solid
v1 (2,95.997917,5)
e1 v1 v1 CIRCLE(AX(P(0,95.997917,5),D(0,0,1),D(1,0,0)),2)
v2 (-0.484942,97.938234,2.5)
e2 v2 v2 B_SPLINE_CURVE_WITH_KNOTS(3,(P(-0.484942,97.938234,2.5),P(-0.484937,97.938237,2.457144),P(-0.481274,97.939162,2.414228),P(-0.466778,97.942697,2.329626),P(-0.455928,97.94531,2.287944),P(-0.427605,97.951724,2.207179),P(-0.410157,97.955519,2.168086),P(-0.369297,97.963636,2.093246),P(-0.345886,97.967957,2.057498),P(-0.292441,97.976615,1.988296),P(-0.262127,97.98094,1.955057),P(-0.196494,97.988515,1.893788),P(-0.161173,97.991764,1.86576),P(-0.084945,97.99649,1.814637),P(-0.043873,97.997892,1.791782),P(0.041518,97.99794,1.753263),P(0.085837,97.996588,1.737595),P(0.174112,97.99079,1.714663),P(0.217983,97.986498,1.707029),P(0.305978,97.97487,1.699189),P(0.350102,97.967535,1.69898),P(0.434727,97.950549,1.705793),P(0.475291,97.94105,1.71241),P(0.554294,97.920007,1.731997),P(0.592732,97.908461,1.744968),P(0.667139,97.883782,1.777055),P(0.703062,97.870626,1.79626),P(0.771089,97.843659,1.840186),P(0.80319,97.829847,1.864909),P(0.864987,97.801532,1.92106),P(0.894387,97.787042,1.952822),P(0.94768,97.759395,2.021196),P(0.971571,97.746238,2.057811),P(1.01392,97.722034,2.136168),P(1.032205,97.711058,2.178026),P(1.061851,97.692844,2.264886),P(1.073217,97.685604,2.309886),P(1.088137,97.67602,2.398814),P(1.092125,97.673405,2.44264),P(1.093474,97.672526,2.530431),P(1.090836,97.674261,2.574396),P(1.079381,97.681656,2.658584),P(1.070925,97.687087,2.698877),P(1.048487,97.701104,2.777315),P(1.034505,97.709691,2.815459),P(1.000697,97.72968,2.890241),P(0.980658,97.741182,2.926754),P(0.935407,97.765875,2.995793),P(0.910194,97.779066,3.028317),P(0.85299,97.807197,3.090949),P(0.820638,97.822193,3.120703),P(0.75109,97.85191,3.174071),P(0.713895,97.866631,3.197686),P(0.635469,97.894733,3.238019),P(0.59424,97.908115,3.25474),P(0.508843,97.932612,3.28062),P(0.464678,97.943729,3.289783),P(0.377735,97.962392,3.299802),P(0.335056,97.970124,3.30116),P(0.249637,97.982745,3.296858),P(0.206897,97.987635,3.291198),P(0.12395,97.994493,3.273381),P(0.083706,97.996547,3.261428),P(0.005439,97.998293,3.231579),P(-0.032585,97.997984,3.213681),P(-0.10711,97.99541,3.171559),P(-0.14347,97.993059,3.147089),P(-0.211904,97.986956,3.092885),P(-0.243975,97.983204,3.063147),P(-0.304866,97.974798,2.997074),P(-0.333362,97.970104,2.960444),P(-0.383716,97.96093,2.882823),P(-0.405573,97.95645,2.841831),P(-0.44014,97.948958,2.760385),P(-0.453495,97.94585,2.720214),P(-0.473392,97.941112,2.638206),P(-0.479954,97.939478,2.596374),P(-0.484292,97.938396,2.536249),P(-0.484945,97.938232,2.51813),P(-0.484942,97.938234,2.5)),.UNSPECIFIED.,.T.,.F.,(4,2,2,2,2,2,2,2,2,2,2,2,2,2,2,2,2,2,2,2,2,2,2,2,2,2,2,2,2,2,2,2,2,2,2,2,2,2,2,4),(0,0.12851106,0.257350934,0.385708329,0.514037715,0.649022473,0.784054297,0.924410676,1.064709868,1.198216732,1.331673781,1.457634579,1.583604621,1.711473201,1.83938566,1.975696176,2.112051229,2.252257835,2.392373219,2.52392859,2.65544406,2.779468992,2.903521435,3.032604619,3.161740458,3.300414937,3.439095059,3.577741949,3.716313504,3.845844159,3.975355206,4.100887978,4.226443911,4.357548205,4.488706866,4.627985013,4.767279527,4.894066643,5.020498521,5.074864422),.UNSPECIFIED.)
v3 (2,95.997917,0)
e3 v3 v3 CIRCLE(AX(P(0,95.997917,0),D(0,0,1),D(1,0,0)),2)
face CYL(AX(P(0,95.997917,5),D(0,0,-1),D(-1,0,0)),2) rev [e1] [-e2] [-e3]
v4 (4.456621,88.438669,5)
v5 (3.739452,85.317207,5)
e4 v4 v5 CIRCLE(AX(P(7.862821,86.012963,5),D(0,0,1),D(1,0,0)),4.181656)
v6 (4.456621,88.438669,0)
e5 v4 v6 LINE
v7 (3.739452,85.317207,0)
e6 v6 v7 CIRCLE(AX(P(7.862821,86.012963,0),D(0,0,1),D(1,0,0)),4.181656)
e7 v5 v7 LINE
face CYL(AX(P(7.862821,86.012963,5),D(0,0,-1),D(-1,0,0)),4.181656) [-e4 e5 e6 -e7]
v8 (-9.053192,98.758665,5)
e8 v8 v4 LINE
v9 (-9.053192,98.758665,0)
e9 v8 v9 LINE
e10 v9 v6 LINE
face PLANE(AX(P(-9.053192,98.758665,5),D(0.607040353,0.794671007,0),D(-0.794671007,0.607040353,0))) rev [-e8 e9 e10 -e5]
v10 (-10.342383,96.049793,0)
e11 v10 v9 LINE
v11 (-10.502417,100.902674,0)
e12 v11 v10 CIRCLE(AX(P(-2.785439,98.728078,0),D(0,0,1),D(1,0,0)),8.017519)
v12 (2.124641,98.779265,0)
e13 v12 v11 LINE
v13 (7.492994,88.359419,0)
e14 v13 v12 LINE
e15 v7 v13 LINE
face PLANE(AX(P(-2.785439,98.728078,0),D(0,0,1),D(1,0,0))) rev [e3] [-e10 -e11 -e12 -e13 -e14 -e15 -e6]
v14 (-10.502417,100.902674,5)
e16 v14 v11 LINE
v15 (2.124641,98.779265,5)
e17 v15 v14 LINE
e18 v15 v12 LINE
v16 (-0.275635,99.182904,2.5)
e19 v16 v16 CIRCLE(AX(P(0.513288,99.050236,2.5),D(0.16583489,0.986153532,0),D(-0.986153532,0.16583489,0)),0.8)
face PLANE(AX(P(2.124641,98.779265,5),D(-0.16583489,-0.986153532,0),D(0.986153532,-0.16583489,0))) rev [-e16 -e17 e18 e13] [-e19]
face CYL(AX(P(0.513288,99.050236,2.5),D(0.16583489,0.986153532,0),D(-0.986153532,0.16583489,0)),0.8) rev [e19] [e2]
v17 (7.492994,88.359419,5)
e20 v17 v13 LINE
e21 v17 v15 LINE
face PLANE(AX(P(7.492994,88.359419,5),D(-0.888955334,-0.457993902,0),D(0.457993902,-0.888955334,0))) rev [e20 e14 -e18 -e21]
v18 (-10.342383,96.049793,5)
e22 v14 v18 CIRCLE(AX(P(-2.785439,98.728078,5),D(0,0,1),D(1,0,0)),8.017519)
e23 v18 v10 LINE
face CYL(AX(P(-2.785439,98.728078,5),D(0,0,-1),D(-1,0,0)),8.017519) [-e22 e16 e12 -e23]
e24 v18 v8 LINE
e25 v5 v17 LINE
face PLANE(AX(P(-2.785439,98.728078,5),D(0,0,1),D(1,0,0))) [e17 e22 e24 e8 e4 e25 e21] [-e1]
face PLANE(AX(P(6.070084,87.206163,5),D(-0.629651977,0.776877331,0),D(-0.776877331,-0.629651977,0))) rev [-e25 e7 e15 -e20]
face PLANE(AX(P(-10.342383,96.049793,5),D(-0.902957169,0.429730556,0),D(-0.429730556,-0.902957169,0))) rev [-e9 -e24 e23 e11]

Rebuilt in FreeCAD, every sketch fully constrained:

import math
import FreeCAD as App
import Part
import Sketcher

doc = App.newDocument("Part")
body = doc.addObject("PartDesign::Body", "Body")

sketch1 = doc.addObject("Sketcher::SketchObject", "Sketch")
body.addObject(sketch1)
sketch1.AttachmentSupport = (doc.XY_Plane, [""])
sketch1.MapMode = "FlatFace"
sketch1.addGeometry(Part.LineSegment(App.Vector(7.5, 88.4, 0), App.Vector(2.1, 98.8, 0)), False)
sketch1.addGeometry(Part.LineSegment(App.Vector(2.1, 98.8, 0), App.Vector(-10.5, 100.9, 0)), False)
sketch1.addGeometry(Part.ArcOfCircle(Part.Circle(App.Vector(-2.8, 98.7, 0), App.Vector(0, 0, 1), 8), math.radians(164), math.radians(200)), False)
sketch1.addGeometry(Part.LineSegment(App.Vector(-10.3, 96, 0), App.Vector(-9.1, 98.8, 0)), False)
sketch1.addGeometry(Part.LineSegment(App.Vector(-9.1, 98.8, 0), App.Vector(4.5, 88.4, 0)), False)
sketch1.addGeometry(Part.ArcOfCircle(Part.Circle(App.Vector(7.9, 86, 0), App.Vector(0, 0, 1), 4.2), math.radians(145), math.radians(190)), False)
sketch1.addGeometry(Part.LineSegment(App.Vector(3.7, 85.3, 0), App.Vector(6.1, 87.2, 0)), False)
sketch1.addGeometry(Part.LineSegment(App.Vector(6.1, 87.2, 0), App.Vector(7.5, 88.4, 0)), False)
sketch1.addGeometry(Part.Circle(App.Vector(0, 96, 0), App.Vector(0, 0, 1), 2), False)
sketch1.addConstraint(Sketcher.Constraint("Coincident", 0, 2, 1, 1))
sketch1.addConstraint(Sketcher.Constraint("Coincident", 1, 2, 2, 1))
sketch1.addConstraint(Sketcher.Constraint("Coincident", 2, 2, 3, 1))
sketch1.addConstraint(Sketcher.Constraint("Coincident", 3, 2, 4, 1))
sketch1.addConstraint(Sketcher.Constraint("Coincident", 4, 2, 5, 1))
sketch1.addConstraint(Sketcher.Constraint("Coincident", 5, 2, 6, 1))
sketch1.addConstraint(Sketcher.Constraint("Coincident", 6, 2, 7, 1))
sketch1.addConstraint(Sketcher.Constraint("Coincident", 7, 2, 0, 1))
sketch1.addConstraint(Sketcher.Constraint("PointOnObject", 8, 3, -2))
sketch1.addConstraint(Sketcher.Constraint("Parallel", 6, 7))
sketch1.addConstraint(Sketcher.Constraint("Equal", 3, 6))
sketch1.addConstraint(Sketcher.Constraint("Diameter", 8, 4.0))
sketch1.addConstraint(Sketcher.Constraint("Distance", 3, 3.0))
sketch1.addConstraint(Sketcher.Constraint("Radius", 2, 8.017519))
sketch1.addConstraint(Sketcher.Constraint("Radius", 5, 4.181656))
sketch1.addConstraint(Sketcher.Constraint("DistanceY", 3, 2, 0, 2, 0.0206))
sketch1.addConstraint(Sketcher.Constraint("DistanceX", 4, 2, 5, 3, 3.406199))
sketch1.addConstraint(Sketcher.Constraint("DistanceY", 5, 3, 6, 2, 1.1932))
sketch1.addConstraint(Sketcher.Constraint("Distance", 0, 11.721451))
sketch1.addConstraint(Sketcher.Constraint("Distance", 4, 17.00051))
sketch1.addConstraint(Sketcher.Constraint("DistanceX", 2, 3, -1, 1, 2.785439))
sketch1.addConstraint(Sketcher.Constraint("DistanceX", -1, 1, 5, 3, 7.862821))
sketch1.addConstraint(Sketcher.Constraint("DistanceX", -1, 1, 0, 2, 2.124641))
sketch1.addConstraint(Sketcher.Constraint("DistanceX", 3, 2, -1, 1, 9.053192))
sketch1.addConstraint(Sketcher.Constraint("DistanceY", -1, 1, 4, 2, 88.438669))
sketch1.addConstraint(Sketcher.Constraint("DistanceX", -1, 1, 5, 2, 3.739452))
sketch1.addConstraint(Sketcher.Constraint("DistanceY", 8, 3, 2, 3, 2.730161))
sketch1.addConstraint(Sketcher.Constraint("DistanceY", 8, 3, 0, 2, 2.781349))
sketch1.addConstraint(Sketcher.Constraint("DistanceX", 1, 2, 2, 3, 7.716978))
pad1 = doc.addObject("PartDesign::Pad", "Pad")
body.addObject(pad1)
pad1.Profile = sketch1
pad1.Length = 5

sketch2 = doc.addObject("Sketcher::SketchObject", "Sketch001")
body.addObject(sketch2)
sketch2.Placement = App.Placement(App.Vector(16.212659, 96.410177, 0), App.Rotation(App.Vector(0.986153532, -0.16583489, 0), App.Vector(0, 0, -0.999999999), App.Vector(0.16583489, 0.986153532, 0), "ZXY"))
sketch2.addGeometry(Part.Circle(App.Vector(-15.9, -2.5, 0), App.Vector(0, 0, 1), 0.8), False)
sketch2.addConstraint(Sketcher.Constraint("Diameter", 0, 1.6))
sketch2.addConstraint(Sketcher.Constraint("DistanceY", 0, 3, -1, 1, 2.5))
sketch2.addConstraint(Sketcher.Constraint("DistanceX", 0, 3, -1, 1, 15.919804))
doc.recompute()
hole = doc.addObject("PartDesign::Hole", "Hole")
body.addObject(hole)
hole.Profile = sketch2
hole.ThreadType = "None"
hole.Diameter = 1.6
hole.DepthType = "Dimension"
hole.Depth = 2.999994
hole.DrillPoint = "Angled"
hole.DrillPointAngle = 118

doc.recompute()
